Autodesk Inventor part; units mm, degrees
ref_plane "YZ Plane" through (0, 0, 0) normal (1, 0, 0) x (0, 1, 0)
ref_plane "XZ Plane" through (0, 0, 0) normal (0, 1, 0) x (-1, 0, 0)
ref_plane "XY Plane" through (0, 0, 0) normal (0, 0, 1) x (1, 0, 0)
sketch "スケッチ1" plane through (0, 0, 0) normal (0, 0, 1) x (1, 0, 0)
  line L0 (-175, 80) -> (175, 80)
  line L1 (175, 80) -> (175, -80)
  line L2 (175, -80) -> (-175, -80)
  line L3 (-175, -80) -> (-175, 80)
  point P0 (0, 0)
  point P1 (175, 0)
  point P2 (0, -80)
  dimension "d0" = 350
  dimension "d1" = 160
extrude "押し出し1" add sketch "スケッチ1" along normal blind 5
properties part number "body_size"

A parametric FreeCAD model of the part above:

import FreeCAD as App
import Part
import Sketcher


def add_polygon(sketch, points):
    """Adds a closed chain of lines whose ends are joined by coincident constraints."""
    first, n = sketch.GeometryCount, len(points)
    for a, b in zip(points, points[1:] + points[:1]):
        sketch.addGeometry(Part.LineSegment(App.Vector(*a, 0), App.Vector(*b, 0)), False)
    for i in range(n):
        sketch.addConstraint(Sketcher.Constraint("Coincident", first + i, 2, first + (i + 1) % n, 1))

doc = App.newDocument("Part")
body = doc.addObject("PartDesign::Body", "Body")

sketch1 = body.newObject("Sketcher::SketchObject", "Sketch")
sketch1.AttachmentSupport = (doc.getObject("XY_Plane"), [""])
sketch1.MapMode = "FlatFace"
add_polygon(sketch1, [(175, 80), (-175, 80), (-175, -80), (175, -80)])
sketch1.addConstraint(Sketcher.Constraint("Horizontal", 0))
sketch1.addConstraint(Sketcher.Constraint("Vertical", 1))
sketch1.addConstraint(Sketcher.Constraint("Horizontal", 2))
sketch1.addConstraint(Sketcher.Constraint("Vertical", 3))
sketch1.addConstraint(Sketcher.Constraint("Symmetric", 0, 2, 2, 2, -1, 1))
sketch1.addConstraint(Sketcher.Constraint("DistanceX", 0, 2, 0, 1, 350.0))
sketch1.addConstraint(Sketcher.Constraint("DistanceY", 1, 2, 1, 1, 160.0))
pad1 = body.newObject("PartDesign::Pad", "Pad")
pad1.Profile = sketch1
pad1.Length = 5

doc.recompute()
